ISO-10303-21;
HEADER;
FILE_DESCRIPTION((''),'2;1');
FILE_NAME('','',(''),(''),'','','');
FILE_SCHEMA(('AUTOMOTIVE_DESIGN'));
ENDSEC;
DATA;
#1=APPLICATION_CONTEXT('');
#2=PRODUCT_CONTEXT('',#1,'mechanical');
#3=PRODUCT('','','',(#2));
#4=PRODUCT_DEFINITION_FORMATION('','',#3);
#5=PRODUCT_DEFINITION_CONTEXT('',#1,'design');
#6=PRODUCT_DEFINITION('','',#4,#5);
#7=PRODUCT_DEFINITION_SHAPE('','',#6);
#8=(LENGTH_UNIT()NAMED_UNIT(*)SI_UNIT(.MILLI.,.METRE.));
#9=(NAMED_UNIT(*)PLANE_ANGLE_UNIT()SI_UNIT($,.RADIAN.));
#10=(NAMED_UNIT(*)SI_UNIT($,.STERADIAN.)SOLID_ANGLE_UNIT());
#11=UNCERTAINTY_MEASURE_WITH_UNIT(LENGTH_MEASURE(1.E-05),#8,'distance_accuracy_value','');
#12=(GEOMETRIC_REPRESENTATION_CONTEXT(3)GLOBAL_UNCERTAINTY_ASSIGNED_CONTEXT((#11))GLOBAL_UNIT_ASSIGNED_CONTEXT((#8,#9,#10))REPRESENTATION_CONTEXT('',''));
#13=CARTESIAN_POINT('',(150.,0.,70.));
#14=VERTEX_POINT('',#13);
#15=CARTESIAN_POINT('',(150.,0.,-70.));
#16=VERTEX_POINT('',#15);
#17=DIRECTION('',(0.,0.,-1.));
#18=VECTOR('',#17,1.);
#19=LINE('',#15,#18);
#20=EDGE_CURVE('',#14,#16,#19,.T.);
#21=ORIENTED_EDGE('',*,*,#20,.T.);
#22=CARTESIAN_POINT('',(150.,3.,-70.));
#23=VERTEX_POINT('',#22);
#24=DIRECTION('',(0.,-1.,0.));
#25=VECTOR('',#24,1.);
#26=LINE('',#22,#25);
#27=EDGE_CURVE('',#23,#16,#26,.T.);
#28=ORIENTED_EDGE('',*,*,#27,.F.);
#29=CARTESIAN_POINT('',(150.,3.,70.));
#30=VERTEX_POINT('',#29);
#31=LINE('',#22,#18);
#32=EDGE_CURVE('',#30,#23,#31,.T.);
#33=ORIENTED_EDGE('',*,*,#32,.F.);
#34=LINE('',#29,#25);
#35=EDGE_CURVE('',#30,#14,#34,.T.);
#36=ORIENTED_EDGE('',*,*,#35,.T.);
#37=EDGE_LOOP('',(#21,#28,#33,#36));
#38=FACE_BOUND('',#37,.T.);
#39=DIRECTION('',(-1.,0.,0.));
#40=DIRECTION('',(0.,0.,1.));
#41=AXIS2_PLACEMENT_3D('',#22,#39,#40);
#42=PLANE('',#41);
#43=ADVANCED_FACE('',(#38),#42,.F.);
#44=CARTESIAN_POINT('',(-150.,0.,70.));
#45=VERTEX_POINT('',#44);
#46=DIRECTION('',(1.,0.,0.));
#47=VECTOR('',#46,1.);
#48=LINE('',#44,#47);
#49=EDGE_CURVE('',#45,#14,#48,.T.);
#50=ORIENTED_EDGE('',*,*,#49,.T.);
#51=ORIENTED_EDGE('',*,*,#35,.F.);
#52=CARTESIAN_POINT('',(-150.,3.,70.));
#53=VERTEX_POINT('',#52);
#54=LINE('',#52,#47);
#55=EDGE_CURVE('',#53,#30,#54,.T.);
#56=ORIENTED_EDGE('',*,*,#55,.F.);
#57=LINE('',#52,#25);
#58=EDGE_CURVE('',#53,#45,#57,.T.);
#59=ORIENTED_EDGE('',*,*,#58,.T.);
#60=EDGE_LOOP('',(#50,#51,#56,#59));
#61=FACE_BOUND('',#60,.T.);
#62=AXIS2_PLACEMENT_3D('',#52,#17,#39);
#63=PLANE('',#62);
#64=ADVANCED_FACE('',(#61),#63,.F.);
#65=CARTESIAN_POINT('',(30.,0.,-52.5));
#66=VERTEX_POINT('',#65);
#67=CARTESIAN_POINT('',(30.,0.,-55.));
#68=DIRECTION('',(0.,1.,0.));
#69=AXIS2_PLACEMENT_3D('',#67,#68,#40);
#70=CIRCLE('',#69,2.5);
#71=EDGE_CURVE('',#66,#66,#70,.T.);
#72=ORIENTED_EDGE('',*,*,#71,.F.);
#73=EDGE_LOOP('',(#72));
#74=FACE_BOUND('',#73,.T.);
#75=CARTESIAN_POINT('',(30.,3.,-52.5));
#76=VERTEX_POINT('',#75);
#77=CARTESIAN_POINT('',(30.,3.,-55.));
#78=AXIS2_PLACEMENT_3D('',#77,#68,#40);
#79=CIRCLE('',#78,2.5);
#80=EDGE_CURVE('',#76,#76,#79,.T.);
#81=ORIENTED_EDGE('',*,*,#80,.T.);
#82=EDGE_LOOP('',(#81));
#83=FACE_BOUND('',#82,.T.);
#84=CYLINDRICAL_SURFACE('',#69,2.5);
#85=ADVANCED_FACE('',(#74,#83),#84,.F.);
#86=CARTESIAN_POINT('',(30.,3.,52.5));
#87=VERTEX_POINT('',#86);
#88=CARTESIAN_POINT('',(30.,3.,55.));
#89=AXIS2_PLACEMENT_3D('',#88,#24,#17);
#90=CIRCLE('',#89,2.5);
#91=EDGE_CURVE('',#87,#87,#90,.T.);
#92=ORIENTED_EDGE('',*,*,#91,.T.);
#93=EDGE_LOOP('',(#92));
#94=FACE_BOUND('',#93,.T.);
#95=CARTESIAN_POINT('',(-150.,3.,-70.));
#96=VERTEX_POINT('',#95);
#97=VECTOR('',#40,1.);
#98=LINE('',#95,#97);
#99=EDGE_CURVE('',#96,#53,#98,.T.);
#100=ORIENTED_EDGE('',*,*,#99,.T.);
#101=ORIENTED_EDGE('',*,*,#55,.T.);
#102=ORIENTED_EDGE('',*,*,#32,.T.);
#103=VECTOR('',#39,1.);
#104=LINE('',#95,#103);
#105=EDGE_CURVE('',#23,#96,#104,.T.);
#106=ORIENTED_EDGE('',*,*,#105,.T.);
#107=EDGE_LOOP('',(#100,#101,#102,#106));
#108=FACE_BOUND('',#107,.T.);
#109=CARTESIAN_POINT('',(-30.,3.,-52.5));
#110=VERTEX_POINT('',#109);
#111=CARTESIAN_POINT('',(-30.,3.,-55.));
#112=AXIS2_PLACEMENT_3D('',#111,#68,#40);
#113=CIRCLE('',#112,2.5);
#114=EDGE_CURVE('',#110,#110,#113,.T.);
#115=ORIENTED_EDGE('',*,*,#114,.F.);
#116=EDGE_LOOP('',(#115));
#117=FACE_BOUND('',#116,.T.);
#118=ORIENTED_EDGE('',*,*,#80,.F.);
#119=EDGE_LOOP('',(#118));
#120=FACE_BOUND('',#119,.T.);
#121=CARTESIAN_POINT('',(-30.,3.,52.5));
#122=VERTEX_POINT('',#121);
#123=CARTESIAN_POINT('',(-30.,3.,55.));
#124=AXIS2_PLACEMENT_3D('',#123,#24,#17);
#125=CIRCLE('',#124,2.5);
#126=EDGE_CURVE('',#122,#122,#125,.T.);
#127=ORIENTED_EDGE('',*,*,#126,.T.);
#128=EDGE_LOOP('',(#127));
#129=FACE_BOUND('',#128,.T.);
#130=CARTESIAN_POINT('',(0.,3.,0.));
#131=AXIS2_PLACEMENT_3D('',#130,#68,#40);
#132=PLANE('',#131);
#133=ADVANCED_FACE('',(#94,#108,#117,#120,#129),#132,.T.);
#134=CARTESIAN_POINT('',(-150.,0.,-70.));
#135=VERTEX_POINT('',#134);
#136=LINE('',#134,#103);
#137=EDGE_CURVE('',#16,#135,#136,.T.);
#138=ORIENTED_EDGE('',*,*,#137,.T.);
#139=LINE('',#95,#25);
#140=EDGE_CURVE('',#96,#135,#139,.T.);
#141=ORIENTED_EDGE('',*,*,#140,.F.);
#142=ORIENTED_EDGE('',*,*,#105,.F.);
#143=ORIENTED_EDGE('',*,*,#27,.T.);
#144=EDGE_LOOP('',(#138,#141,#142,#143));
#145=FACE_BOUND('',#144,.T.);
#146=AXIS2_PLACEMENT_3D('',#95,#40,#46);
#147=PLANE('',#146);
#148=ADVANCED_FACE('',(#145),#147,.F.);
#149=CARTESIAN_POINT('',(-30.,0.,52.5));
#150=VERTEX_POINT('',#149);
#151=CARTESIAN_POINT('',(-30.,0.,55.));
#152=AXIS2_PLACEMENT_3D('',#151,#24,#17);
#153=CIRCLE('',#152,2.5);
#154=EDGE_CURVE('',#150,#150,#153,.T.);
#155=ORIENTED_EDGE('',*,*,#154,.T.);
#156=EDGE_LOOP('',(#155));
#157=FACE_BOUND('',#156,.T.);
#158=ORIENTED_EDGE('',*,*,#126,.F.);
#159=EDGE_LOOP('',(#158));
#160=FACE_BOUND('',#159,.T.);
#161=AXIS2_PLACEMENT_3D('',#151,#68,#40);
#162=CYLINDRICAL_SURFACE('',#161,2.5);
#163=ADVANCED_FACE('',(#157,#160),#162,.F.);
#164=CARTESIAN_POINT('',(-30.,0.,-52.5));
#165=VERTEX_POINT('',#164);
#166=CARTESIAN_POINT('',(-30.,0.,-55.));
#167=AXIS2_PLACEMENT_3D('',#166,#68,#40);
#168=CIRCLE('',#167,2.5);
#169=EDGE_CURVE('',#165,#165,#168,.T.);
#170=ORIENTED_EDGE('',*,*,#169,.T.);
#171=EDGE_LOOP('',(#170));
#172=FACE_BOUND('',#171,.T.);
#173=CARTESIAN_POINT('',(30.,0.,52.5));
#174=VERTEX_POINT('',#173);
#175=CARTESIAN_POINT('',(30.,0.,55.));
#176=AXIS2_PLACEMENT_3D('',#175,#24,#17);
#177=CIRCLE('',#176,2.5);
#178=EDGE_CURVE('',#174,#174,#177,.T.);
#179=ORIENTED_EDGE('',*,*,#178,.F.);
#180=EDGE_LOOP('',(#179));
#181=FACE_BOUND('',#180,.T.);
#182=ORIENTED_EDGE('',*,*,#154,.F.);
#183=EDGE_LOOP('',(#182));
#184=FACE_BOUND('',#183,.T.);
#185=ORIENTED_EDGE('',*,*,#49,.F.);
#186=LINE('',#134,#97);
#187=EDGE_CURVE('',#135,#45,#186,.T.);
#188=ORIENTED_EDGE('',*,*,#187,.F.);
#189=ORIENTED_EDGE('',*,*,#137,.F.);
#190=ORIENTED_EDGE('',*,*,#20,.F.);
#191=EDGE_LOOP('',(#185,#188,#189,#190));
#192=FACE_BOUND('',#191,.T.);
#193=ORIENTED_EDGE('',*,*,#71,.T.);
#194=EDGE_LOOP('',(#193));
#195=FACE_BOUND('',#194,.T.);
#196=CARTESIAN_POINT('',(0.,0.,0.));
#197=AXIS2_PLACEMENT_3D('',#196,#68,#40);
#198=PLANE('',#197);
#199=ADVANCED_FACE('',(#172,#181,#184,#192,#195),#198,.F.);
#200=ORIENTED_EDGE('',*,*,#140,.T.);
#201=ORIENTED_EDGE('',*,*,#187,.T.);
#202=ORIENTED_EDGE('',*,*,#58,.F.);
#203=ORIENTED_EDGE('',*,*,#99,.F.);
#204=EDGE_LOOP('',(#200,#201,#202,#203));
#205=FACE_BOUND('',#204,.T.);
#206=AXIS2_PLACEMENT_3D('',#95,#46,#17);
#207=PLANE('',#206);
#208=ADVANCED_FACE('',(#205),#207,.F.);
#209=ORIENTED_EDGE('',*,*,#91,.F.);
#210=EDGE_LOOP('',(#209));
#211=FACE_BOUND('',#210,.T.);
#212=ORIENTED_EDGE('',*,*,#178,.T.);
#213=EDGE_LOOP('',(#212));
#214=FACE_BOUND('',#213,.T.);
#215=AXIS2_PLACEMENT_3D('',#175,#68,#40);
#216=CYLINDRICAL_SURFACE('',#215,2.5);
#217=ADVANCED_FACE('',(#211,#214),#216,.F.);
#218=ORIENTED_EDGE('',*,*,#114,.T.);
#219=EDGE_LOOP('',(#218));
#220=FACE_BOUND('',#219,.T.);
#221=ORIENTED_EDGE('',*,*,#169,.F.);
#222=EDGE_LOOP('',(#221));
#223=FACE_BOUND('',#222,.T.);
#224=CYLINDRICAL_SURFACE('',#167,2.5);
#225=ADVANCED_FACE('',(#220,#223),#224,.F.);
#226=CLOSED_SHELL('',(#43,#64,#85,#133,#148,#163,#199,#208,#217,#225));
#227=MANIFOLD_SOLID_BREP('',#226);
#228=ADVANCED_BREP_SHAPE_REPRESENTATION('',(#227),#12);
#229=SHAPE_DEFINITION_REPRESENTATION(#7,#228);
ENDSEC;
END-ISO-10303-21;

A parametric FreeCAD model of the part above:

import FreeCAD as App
import Part
import Sketcher

doc = App.newDocument("Part")
body = doc.addObject("PartDesign::Body", "Body")

# Sketch on XZ plane
sketch1 = body.newObject("Sketcher::SketchObject", "Sketch")
sketch1.AttachmentSupport = (doc.getObject("XZ_Plane"), [""])
sketch1.MapMode = "FlatFace"
sketch1.addGeometry([
    Part.LineSegment(App.Vector(-150, -70, 0), App.Vector(-150, 70, 0)),
    Part.LineSegment(App.Vector(-150, 70, 0), App.Vector(150, 70, 0)),
    Part.LineSegment(App.Vector(150, 70, 0), App.Vector(150, -70, 0)),
    Part.LineSegment(App.Vector(150, -70, 0), App.Vector(-150, -70, 0)),
], False)
sketch1.addConstraint([
    Sketcher.Constraint("Coincident", 0, 2, 1, 1),
    Sketcher.Constraint("Coincident", 1, 2, 2, 1),
    Sketcher.Constraint("Coincident", 2, 2, 3, 1),
    Sketcher.Constraint("Coincident", 3, 2, 0, 1),
    Sketcher.Constraint("Vertical", 0),
    Sketcher.Constraint("Horizontal", 1),
    Sketcher.Constraint("Vertical", 2),
    Sketcher.Constraint("Horizontal", 3),
    Sketcher.Constraint("Symmetric", 0, 2, 2, 2, -1, 1),
    Sketcher.Constraint("DistanceX", 1, 1, 1, 2, 300.0),
    Sketcher.Constraint("DistanceY", 0, 1, 0, 2, 140.0),
])
pad1 = body.newObject("PartDesign::Pad", "Pad")
pad1.Profile = sketch1
pad1.Length = 3
pad1.Reversed = True

# Sketch on XZ plane
sketch2 = body.newObject("Sketcher::SketchObject", "Sketch001")
sketch2.AttachmentSupport = (doc.getObject("XZ_Plane"), [""])
sketch2.MapMode = "FlatFace"
sketch2.AttachmentOffset = App.Placement(App.Vector(0, 0, -3), App.Rotation())
sketch2.addGeometry([
    Part.Circle(App.Vector(-30, -55, 0), App.Vector(0, 0, 1), 2.5),
    Part.Circle(App.Vector(30, -55, 0), App.Vector(0, 0, 1), 2.5),
], False)
sketch2.addConstraint([
    Sketcher.Constraint("Equal", 0, 1),
    Sketcher.Constraint("Symmetric", 0, 3, 1, 3, -2),
    Sketcher.Constraint("Diameter", 0, 5.0),
    Sketcher.Constraint("DistanceX", 0, 3, -1, 1, 30.0),
    Sketcher.Constraint("DistanceY", 0, 3, -1, 1, 55.0),
])
pocket1 = body.newObject("PartDesign::Pocket", "Pocket")
pocket1.Profile = sketch2
pocket1.Length = 3
pocket1.Reversed = True
doc.recompute()

mirrored = body.newObject("PartDesign::Mirrored", "Mirrored")
mirrored.Originals = [pocket1]
mirrored.MirrorPlane = (doc.getObject("XY_Plane"), [""])
body.Tip = mirrored

doc.recompute()
